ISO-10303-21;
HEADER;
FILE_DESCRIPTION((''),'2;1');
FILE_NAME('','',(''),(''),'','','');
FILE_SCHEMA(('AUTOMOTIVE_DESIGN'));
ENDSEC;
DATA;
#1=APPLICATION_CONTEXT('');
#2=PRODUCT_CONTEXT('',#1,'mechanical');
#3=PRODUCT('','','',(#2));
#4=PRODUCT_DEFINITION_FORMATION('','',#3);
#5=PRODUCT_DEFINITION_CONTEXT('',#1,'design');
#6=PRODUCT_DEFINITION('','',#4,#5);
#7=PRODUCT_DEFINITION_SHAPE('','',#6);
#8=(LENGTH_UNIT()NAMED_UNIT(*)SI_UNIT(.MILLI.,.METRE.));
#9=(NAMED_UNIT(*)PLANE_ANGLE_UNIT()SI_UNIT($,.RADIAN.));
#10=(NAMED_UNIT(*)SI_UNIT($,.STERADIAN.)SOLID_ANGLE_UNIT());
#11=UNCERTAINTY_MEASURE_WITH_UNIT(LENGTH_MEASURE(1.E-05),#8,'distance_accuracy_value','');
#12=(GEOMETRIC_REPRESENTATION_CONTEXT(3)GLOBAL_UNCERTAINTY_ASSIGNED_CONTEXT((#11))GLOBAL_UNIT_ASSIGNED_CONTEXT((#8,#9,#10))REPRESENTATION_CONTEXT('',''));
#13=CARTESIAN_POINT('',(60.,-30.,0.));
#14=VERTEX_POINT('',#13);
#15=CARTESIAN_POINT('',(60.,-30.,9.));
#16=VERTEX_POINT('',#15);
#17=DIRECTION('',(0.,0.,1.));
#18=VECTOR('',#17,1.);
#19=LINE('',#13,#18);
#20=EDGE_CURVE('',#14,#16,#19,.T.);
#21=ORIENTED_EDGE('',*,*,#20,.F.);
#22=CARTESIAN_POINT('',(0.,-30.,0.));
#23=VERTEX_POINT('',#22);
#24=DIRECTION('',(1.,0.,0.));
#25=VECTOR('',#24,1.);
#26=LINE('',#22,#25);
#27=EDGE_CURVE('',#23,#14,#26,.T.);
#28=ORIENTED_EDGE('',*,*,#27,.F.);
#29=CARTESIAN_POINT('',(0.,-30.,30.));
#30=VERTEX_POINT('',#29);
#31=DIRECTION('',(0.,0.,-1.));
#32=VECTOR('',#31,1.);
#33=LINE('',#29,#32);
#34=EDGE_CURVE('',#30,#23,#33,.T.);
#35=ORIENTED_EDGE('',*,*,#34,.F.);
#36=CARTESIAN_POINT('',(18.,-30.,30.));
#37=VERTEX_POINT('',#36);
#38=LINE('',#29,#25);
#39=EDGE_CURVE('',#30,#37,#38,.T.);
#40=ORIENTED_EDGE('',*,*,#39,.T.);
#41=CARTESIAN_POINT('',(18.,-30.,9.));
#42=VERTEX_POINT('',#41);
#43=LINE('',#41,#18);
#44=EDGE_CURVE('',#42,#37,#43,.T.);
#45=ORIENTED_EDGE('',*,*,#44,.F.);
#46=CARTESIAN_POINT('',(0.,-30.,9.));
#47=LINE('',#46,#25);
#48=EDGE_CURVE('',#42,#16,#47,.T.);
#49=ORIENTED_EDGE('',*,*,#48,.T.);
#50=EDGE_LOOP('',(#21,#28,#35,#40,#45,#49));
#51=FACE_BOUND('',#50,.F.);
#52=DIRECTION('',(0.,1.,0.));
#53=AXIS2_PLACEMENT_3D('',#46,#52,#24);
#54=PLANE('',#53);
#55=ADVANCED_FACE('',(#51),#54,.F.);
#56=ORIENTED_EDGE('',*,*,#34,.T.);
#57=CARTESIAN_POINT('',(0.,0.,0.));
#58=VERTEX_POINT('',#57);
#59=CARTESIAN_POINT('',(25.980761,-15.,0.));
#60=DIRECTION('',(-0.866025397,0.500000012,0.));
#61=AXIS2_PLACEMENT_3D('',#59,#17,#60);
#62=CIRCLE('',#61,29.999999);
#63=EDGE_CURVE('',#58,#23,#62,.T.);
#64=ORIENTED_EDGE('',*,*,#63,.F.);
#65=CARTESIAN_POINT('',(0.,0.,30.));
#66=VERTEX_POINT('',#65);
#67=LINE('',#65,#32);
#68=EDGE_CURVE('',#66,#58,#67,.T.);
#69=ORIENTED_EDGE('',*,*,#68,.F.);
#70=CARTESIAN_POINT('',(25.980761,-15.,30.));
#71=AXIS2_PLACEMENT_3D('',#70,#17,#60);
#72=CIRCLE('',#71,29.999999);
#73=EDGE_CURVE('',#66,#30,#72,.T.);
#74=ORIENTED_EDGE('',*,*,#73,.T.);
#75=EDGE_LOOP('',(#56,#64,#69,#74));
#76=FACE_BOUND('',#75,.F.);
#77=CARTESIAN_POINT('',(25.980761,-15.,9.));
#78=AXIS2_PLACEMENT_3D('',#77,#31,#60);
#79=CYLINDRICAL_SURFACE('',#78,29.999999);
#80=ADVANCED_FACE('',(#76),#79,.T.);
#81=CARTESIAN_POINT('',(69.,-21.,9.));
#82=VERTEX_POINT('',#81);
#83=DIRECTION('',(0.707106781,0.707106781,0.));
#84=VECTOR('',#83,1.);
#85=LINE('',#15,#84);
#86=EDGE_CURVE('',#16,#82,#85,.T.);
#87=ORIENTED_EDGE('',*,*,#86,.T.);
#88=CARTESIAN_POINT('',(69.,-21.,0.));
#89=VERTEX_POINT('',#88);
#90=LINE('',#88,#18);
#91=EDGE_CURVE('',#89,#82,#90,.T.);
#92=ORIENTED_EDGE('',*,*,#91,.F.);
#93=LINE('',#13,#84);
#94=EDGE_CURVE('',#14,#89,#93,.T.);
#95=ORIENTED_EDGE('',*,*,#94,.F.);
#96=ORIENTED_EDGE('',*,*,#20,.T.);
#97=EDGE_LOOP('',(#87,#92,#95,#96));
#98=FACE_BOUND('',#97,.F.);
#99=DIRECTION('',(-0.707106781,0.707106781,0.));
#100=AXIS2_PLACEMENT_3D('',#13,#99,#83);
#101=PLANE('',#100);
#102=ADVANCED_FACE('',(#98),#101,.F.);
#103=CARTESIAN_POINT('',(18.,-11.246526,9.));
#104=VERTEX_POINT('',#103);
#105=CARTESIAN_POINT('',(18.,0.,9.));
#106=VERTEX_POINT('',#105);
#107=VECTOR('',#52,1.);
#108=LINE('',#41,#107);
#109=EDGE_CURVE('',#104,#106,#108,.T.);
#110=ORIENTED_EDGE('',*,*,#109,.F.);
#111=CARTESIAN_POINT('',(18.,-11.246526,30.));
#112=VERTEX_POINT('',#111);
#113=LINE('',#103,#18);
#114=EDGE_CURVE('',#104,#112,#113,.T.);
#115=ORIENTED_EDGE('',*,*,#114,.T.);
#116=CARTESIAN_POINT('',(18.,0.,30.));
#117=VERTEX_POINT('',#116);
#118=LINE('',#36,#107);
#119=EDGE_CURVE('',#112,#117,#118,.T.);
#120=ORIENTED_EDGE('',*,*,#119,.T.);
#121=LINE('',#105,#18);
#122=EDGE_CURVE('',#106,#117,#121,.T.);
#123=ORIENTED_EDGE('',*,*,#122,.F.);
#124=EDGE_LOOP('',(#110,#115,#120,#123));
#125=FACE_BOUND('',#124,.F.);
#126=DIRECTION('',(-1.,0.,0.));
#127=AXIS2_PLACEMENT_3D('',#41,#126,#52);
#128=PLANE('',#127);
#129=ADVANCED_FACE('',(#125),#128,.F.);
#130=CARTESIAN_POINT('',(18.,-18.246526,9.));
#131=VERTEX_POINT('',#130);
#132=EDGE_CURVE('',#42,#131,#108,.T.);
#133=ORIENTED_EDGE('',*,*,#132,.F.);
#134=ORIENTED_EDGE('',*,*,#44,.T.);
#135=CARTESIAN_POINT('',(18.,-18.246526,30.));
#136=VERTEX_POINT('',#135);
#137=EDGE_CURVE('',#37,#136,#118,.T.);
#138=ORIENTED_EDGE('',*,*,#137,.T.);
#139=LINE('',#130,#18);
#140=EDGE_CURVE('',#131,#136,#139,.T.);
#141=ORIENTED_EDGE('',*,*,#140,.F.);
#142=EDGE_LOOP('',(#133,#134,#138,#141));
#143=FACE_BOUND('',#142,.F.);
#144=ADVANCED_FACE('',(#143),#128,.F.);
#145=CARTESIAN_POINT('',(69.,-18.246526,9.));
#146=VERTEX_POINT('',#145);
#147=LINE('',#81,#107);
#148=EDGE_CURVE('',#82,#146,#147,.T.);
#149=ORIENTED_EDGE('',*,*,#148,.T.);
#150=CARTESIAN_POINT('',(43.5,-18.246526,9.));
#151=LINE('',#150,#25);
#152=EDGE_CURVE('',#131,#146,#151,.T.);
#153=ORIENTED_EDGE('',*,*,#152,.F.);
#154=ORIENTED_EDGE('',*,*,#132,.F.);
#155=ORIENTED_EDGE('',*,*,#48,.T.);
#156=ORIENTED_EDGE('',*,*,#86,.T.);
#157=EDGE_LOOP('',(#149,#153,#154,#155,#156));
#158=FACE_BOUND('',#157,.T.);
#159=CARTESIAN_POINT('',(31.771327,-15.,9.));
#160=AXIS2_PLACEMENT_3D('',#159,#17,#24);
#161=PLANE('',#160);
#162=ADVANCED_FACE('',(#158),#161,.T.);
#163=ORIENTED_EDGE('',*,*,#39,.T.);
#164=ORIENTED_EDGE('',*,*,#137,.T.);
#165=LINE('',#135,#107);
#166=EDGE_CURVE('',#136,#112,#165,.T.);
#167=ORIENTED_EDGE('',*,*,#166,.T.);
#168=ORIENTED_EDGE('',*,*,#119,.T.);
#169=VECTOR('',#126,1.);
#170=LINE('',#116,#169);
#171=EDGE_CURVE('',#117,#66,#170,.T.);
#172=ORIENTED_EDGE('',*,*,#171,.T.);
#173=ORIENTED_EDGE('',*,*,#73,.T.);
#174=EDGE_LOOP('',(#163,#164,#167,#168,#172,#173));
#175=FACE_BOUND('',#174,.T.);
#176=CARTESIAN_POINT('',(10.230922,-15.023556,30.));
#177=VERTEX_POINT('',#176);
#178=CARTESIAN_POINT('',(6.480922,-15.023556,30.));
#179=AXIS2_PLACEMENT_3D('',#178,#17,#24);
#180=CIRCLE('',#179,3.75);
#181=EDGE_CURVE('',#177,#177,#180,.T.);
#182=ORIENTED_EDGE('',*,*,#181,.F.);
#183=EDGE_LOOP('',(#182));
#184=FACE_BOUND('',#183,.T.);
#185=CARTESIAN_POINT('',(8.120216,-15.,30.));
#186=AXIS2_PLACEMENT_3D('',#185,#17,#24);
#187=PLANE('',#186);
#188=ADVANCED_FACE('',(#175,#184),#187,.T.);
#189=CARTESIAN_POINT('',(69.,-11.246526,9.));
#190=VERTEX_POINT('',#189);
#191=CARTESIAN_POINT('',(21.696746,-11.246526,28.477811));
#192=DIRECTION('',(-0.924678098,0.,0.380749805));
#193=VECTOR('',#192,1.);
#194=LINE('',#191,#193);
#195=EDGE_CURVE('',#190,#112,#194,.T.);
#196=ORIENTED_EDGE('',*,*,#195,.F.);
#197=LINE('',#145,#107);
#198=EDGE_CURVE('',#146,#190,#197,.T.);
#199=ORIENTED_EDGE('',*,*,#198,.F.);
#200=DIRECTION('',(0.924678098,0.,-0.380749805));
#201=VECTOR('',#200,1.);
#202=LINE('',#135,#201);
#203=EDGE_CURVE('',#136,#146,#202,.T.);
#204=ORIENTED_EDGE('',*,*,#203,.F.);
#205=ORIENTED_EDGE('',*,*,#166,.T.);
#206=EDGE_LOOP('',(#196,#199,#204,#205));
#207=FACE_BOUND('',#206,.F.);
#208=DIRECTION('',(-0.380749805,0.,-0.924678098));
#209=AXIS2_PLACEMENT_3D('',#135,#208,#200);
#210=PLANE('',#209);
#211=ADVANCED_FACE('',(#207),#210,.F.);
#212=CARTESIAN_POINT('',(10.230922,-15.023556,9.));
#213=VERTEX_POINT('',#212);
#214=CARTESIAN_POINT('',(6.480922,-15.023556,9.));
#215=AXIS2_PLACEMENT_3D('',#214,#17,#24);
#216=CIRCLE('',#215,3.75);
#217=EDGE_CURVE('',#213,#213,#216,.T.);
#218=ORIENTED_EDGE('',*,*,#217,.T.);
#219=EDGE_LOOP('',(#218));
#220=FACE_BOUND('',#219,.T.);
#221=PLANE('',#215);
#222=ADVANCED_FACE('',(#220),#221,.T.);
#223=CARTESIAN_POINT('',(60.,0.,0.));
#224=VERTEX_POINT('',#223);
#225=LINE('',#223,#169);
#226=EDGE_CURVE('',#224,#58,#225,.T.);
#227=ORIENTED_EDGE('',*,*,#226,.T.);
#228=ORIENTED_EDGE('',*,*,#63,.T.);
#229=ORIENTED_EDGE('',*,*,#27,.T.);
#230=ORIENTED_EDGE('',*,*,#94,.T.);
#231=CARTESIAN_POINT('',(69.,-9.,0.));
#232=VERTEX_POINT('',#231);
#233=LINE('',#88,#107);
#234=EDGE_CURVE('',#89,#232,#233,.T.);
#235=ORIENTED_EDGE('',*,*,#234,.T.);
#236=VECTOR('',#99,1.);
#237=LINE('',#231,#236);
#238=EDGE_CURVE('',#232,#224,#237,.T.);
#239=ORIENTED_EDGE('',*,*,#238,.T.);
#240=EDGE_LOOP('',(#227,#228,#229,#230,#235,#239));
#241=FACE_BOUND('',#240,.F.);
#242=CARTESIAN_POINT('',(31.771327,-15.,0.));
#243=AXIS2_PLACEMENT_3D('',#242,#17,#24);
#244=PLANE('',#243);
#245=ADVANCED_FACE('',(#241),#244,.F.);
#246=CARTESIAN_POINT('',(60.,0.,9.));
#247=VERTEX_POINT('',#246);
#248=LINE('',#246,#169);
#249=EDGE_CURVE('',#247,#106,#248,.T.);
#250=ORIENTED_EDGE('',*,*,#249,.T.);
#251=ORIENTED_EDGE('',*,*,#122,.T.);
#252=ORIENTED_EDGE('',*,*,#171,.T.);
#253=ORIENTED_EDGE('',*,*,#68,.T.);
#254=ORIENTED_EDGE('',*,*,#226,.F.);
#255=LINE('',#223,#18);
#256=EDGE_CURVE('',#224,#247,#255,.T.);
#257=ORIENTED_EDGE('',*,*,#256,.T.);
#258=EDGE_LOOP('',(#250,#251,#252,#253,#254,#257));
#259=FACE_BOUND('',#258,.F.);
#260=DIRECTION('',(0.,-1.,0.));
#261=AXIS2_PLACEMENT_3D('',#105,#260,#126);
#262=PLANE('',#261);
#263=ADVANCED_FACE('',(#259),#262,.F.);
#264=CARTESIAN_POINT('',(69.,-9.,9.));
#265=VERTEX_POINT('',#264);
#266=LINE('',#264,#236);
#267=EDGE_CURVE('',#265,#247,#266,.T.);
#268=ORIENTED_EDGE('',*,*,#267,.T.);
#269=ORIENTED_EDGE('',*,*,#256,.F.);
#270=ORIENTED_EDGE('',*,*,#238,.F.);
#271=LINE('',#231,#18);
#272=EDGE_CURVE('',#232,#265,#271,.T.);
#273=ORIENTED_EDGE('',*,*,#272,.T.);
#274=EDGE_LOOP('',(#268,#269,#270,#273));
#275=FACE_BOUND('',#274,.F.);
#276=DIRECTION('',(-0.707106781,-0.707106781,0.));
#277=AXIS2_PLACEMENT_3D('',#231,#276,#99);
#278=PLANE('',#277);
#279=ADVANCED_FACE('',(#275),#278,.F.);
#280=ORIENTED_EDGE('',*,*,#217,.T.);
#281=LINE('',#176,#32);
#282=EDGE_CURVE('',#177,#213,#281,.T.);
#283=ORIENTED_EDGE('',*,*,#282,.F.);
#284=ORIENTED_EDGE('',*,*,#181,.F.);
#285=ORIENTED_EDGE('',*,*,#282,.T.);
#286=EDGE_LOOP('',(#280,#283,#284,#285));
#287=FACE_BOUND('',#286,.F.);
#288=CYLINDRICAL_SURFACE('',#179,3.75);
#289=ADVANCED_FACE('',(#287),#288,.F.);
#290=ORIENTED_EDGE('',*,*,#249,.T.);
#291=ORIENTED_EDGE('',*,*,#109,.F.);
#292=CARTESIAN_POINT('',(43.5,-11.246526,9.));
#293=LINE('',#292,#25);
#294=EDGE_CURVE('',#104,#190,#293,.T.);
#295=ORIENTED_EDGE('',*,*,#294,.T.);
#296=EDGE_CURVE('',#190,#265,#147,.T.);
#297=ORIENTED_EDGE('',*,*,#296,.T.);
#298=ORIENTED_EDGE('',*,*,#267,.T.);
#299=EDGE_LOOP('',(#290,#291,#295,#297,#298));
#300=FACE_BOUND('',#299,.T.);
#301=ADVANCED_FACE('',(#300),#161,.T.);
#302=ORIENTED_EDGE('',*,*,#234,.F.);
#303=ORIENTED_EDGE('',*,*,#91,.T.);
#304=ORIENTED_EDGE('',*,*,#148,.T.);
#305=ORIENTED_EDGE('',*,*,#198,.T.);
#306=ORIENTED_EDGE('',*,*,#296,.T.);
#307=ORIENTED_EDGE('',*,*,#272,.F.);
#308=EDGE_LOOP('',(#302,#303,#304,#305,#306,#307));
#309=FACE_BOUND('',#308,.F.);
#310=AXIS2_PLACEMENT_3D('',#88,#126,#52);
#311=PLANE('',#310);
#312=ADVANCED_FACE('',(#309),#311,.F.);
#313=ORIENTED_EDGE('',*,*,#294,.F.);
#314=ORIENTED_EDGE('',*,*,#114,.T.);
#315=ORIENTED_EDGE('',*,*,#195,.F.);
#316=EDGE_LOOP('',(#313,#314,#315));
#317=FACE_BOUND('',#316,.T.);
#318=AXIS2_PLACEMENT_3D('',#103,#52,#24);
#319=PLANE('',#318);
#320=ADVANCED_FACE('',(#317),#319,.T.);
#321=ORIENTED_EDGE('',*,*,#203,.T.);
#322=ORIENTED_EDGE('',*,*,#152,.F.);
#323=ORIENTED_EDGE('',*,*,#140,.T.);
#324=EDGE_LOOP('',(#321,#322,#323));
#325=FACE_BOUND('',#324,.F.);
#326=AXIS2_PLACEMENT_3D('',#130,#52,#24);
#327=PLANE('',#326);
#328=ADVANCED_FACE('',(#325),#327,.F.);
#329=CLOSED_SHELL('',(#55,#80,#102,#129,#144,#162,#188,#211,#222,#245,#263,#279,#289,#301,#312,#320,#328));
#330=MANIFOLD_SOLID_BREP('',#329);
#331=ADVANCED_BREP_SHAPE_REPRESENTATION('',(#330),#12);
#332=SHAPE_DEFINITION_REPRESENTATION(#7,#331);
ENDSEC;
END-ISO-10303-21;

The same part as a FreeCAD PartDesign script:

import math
import FreeCAD as App
import Part
import Sketcher
from FreeCAD import Vector


def add_polygon(sketch, points):
    """Adds a closed chain of lines whose ends are joined by coincident constraints."""
    first, n = sketch.GeometryCount, len(points)
    for a, b in zip(points, points[1:] + points[:1]):
        sketch.addGeometry(Part.LineSegment(App.Vector(*a, 0), App.Vector(*b, 0)), False)
    for i in range(n):
        sketch.addConstraint(Sketcher.Constraint("Coincident", first + i, 2, first + (i + 1) % n, 1))

doc = App.newDocument("Part")
body = doc.addObject("PartDesign::Body", "Body")

sketch1 = body.newObject("Sketcher::SketchObject", "Sketch")
sketch1.AttachmentSupport = (doc.getObject("XY_Plane"), [""])
sketch1.MapMode = "FlatFace"
sketch1.addGeometry([
    Part.ArcOfCircle(Part.Circle(Vector(26, -15, 0), Vector(0, 0, 1), 30), math.radians(150), math.radians(210)),
    Part.LineSegment(Vector(0, -30, 0), Vector(60, -30, 0)),
    Part.LineSegment(Vector(60, -30, 0), Vector(69, -21, 0)),
    Part.LineSegment(Vector(69, -21, 0), Vector(69, -9, 0)),
    Part.LineSegment(Vector(69, -9, 0), Vector(60, 0, 0)),
    Part.LineSegment(Vector(60, 0, 0), Vector(0, 0, 0)),
], False)
sketch1.addConstraint([
    Sketcher.Constraint("Coincident", 0, 2, 1, 1),
    Sketcher.Constraint("Coincident", 1, 2, 2, 1),
    Sketcher.Constraint("Coincident", 2, 2, 3, 1),
    Sketcher.Constraint("Coincident", 3, 2, 4, 1),
    Sketcher.Constraint("Coincident", 4, 2, 5, 1),
    Sketcher.Constraint("Coincident", 5, 2, 0, 1),
    Sketcher.Constraint("Horizontal", 1),
    Sketcher.Constraint("Vertical", 3),
    Sketcher.Constraint("Horizontal", 5),
    Sketcher.Constraint("Coincident", 5, 2, -1, 1),
    Sketcher.Constraint("PointOnObject", 0, 2, -2),
    Sketcher.Constraint("Perpendicular", 2, 4),
    Sketcher.Constraint("Vertical", 1, 2, 4, 2),
    Sketcher.Constraint("Equal", 2, 4),
    Sketcher.Constraint("Radius", 0, 29.999999),
    Sketcher.Constraint("DistanceX", 1, 1, 1, 2, 60.0),
    Sketcher.Constraint("DistanceY", 3, 1, 3, 2, 12.0),
    Sketcher.Constraint("DistanceY", 0, 3, -1, 1, 15.0),
])
pad1 = body.newObject("PartDesign::Pad", "Pad")
pad1.Profile = sketch1
pad1.Length = 9

sketch2 = body.newObject("Sketcher::SketchObject", "Sketch001")
sketch2.AttachmentSupport = (doc.getObject("XY_Plane"), [""])
sketch2.MapMode = "FlatFace"
sketch2.AttachmentOffset = App.Placement(Vector(0, 0, 9), App.Rotation())
sketch2.addGeometry([
    Part.LineSegment(Vector(0, -30, 0), Vector(18, -30, 0)),
    Part.LineSegment(Vector(18, -30, 0), Vector(18, 0, 0)),
    Part.LineSegment(Vector(18, 0, 0), Vector(0, 0, 0)),
    Part.ArcOfCircle(Part.Circle(Vector(26, -15, 0), Vector(0, 0, 1), 30), math.radians(150), math.radians(210)),
], False)
sketch2.addConstraint([
    Sketcher.Constraint("Coincident", 0, 2, 1, 1),
    Sketcher.Constraint("Coincident", 1, 2, 2, 1),
    Sketcher.Constraint("Coincident", 2, 2, 3, 1),
    Sketcher.Constraint("Coincident", 3, 2, 0, 1),
    Sketcher.Constraint("Horizontal", 0),
    Sketcher.Constraint("Vertical", 1),
    Sketcher.Constraint("Horizontal", 2),
    Sketcher.Constraint("Coincident", 2, 2, -1, 1),
    Sketcher.Constraint("PointOnObject", 3, 2, -2),
    Sketcher.Constraint("Radius", 3, 29.999999),
    Sketcher.Constraint("DistanceX", 0, 1, 0, 2, 18.0),
    Sketcher.Constraint("DistanceY", 1, 1, 1, 2, 30.0),
])
pad2 = body.newObject("PartDesign::Pad", "Pad001")
pad2.Profile = sketch2
pad2.Length = 21

sketch3 = body.newObject("Sketcher::SketchObject", "Sketch002")
sketch3.AttachmentSupport = (doc.getObject("XY_Plane"), [""])
sketch3.MapMode = "FlatFace"
sketch3.AttachmentOffset = App.Placement(Vector(0, 0, 9), App.Rotation())
add_polygon(sketch3, [(18, -11), (18, -18), (69, -18), (69, -11)])
sketch3.addConstraint([
    Sketcher.Constraint("Vertical", 0),
    Sketcher.Constraint("Horizontal", 1),
    Sketcher.Constraint("Vertical", 2),
    Sketcher.Constraint("Horizontal", 3),
    Sketcher.Constraint("DistanceX", 1, 1, 1, 2, 51.0),
    Sketcher.Constraint("DistanceY", 0, 2, 0, 1, 7.0),
    Sketcher.Constraint("DistanceX", -1, 1, 0, 2, 18.0),
    Sketcher.Constraint("DistanceY", 0, 2, -1, 1, 18.246526),
])
pad3 = body.newObject("PartDesign::Pad", "Pad002")
pad3.Profile = sketch3
pad3.Length = 21

sketch4 = body.newObject("Sketcher::SketchObject", "Sketch003")
sketch4.AttachmentSupport = (doc.getObject("XZ_Plane"), [""])
sketch4.MapMode = "FlatFace"
sketch4.AttachmentOffset = App.Placement(Vector(0, 0, 18.246526), App.Rotation())
add_polygon(sketch4, [(69, 30), (18, 30), (69, 9)])
sketch4.addConstraint([
    Sketcher.Constraint("Horizontal", 0),
    Sketcher.Constraint("Vertical", 2),
    Sketcher.Constraint("DistanceX", 0, 2, 0, 1, 51.0),
    Sketcher.Constraint("DistanceY", 2, 1, 2, 2, 21.0),
    Sketcher.Constraint("DistanceX", -1, 1, 0, 2, 18.0),
    Sketcher.Constraint("DistanceY", -1, 1, 0, 2, 30.0),
])
pocket1 = body.newObject("PartDesign::Pocket", "Pocket")
pocket1.Profile = sketch4
pocket1.Length = 25

sketch5 = body.newObject("Sketcher::SketchObject", "Sketch004")
sketch5.AttachmentSupport = (doc.getObject("XY_Plane"), [""])
sketch5.MapMode = "FlatFace"
sketch5.AttachmentOffset = App.Placement(Vector(0, 0, 30), App.Rotation())
sketch5.addGeometry(Part.Circle(Vector(6.5, -15, 0), Vector(0, 0, 1), 3.8), False)
sketch5.addConstraint([
    Sketcher.Constraint("Diameter", 0, 7.5),
    Sketcher.Constraint("DistanceX", -1, 1, 0, 3, 6.480922),
    Sketcher.Constraint("DistanceY", 0, 3, -1, 1, 15.023556),
])
pocket2 = body.newObject("PartDesign::Pocket", "Pocket001")
pocket2.Profile = sketch5
pocket2.Length = 21

doc.recompute()
